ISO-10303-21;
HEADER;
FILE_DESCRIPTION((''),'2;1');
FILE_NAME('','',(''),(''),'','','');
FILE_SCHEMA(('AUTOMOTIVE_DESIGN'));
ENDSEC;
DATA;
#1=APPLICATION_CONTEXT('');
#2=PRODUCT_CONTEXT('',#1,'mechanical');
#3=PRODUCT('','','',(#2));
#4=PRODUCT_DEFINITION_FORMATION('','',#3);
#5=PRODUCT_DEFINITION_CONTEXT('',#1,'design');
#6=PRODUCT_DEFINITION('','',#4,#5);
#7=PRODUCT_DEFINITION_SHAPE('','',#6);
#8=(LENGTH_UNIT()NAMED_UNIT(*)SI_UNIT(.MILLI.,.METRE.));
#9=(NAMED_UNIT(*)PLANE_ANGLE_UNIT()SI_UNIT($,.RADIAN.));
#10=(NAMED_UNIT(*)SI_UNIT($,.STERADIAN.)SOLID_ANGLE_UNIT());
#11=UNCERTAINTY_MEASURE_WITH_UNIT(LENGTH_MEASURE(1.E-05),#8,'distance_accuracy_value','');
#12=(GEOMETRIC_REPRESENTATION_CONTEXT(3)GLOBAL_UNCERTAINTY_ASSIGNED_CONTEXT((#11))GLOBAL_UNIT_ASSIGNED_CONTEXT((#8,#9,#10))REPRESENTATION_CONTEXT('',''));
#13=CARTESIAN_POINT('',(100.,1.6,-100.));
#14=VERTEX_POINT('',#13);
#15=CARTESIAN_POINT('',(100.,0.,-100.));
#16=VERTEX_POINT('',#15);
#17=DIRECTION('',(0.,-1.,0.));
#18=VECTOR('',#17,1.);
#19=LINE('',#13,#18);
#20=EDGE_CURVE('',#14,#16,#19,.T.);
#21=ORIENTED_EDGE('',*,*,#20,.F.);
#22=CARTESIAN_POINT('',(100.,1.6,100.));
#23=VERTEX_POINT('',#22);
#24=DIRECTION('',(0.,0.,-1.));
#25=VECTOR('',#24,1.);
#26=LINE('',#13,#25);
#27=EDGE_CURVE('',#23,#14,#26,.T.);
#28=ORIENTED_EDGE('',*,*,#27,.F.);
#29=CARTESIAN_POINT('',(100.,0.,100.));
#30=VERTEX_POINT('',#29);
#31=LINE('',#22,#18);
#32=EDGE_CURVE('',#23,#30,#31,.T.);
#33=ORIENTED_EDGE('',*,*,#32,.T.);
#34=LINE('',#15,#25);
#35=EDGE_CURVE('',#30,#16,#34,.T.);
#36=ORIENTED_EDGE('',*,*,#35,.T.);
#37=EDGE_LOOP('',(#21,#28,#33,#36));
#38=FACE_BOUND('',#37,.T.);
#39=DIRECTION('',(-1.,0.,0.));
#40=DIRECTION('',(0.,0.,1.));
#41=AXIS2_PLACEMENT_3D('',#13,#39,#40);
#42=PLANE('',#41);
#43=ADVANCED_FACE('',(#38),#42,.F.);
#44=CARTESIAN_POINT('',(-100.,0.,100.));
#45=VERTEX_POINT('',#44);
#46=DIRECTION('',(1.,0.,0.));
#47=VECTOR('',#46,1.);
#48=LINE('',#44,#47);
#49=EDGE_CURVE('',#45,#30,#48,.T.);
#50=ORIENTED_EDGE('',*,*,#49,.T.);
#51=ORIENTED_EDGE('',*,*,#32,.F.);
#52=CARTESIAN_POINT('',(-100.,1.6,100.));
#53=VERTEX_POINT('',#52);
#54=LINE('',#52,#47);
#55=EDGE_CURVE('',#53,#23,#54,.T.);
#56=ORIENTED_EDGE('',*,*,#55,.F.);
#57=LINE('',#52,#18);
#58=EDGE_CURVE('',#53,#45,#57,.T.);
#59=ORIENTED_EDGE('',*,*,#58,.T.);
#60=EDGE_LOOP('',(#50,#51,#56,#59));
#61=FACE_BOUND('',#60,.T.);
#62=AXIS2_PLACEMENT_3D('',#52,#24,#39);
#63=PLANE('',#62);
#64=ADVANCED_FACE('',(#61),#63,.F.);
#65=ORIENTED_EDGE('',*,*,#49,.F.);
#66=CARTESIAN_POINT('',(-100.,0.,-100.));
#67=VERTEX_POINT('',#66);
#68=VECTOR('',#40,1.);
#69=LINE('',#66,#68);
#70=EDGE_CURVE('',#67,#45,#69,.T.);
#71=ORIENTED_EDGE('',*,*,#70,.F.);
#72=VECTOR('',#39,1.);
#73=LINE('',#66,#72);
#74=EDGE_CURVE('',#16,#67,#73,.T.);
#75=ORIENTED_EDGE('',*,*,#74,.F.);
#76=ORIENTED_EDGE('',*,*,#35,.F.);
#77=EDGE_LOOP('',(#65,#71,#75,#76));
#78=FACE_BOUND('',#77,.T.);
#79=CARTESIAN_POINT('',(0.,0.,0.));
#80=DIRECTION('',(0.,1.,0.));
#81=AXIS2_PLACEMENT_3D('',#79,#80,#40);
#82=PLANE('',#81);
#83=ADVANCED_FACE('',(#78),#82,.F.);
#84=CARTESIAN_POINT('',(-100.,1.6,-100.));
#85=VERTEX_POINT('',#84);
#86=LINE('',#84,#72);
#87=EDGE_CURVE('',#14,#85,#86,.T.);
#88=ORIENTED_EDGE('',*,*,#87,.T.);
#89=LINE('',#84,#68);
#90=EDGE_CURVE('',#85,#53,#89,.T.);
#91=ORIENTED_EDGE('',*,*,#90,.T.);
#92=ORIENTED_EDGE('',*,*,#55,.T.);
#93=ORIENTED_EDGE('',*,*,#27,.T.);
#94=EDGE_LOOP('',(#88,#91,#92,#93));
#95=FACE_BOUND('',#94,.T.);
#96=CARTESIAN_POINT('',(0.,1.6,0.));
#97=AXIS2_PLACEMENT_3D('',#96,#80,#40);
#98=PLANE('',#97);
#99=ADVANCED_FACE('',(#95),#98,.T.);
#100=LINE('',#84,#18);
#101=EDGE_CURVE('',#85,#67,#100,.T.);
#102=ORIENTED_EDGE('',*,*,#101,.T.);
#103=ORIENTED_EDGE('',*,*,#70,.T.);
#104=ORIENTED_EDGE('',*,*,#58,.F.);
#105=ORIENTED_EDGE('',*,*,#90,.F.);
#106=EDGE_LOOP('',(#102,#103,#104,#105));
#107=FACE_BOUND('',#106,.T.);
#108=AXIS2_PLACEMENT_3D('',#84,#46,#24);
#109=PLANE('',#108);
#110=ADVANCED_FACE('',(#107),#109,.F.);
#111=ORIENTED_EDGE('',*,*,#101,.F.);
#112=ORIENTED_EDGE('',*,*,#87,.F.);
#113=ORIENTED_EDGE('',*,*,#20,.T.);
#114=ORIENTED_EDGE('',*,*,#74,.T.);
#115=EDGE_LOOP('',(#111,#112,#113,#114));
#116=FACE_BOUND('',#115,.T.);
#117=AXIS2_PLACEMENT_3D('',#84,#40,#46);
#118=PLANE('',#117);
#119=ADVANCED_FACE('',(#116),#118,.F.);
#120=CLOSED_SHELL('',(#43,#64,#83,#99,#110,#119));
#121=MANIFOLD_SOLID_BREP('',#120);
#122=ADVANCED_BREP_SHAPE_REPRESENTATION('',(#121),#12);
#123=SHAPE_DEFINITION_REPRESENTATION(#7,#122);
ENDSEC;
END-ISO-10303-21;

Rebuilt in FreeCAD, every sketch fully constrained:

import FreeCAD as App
import Part
import Sketcher
from FreeCAD import Vector
Q = App.Units.Quantity

doc = App.newDocument("Part")
body = doc.addObject("PartDesign::Body", "Body")

# Sketch on XZ plane
sketch1 = body.newObject("Sketcher::SketchObject", "Sketch")
sketch1.AttachmentSupport = (doc.getObject("XZ_Plane"), [""])
sketch1.MapMode = "FlatFace"
sketch1.addGeometry([
    Part.LineSegment(Vector(-100, -100, 0), Vector(-100, 100, 0)),
    Part.LineSegment(Vector(-100, 100, 0), Vector(100, 100, 0)),
    Part.LineSegment(Vector(100, 100, 0), Vector(100, -100, 0)),
    Part.LineSegment(Vector(100, -100, 0), Vector(-100, -100, 0)),
], False)
sketch1.addConstraint([
    Sketcher.Constraint("Coincident", 0, 2, 1, 1),
    Sketcher.Constraint("Coincident", 1, 2, 2, 1),
    Sketcher.Constraint("Coincident", 2, 2, 3, 1),
    Sketcher.Constraint("Coincident", 3, 2, 0, 1),
    Sketcher.Constraint("Vertical", 0),
    Sketcher.Constraint("Horizontal", 1),
    Sketcher.Constraint("Vertical", 2),
    Sketcher.Constraint("Horizontal", 3),
    Sketcher.Constraint("Symmetric", 0, 2, 2, 2, -1, 1),
    Sketcher.Constraint("Equal", 3, 0),
    Sketcher.Constraint("DistanceX", 1, 1, 1, 2, Q("200 mm")),
])
pad1 = body.newObject("PartDesign::Pad", "Pad")
pad1.Profile = sketch1
pad1.Length = 1.6
pad1.Reversed = True

doc.recompute()
